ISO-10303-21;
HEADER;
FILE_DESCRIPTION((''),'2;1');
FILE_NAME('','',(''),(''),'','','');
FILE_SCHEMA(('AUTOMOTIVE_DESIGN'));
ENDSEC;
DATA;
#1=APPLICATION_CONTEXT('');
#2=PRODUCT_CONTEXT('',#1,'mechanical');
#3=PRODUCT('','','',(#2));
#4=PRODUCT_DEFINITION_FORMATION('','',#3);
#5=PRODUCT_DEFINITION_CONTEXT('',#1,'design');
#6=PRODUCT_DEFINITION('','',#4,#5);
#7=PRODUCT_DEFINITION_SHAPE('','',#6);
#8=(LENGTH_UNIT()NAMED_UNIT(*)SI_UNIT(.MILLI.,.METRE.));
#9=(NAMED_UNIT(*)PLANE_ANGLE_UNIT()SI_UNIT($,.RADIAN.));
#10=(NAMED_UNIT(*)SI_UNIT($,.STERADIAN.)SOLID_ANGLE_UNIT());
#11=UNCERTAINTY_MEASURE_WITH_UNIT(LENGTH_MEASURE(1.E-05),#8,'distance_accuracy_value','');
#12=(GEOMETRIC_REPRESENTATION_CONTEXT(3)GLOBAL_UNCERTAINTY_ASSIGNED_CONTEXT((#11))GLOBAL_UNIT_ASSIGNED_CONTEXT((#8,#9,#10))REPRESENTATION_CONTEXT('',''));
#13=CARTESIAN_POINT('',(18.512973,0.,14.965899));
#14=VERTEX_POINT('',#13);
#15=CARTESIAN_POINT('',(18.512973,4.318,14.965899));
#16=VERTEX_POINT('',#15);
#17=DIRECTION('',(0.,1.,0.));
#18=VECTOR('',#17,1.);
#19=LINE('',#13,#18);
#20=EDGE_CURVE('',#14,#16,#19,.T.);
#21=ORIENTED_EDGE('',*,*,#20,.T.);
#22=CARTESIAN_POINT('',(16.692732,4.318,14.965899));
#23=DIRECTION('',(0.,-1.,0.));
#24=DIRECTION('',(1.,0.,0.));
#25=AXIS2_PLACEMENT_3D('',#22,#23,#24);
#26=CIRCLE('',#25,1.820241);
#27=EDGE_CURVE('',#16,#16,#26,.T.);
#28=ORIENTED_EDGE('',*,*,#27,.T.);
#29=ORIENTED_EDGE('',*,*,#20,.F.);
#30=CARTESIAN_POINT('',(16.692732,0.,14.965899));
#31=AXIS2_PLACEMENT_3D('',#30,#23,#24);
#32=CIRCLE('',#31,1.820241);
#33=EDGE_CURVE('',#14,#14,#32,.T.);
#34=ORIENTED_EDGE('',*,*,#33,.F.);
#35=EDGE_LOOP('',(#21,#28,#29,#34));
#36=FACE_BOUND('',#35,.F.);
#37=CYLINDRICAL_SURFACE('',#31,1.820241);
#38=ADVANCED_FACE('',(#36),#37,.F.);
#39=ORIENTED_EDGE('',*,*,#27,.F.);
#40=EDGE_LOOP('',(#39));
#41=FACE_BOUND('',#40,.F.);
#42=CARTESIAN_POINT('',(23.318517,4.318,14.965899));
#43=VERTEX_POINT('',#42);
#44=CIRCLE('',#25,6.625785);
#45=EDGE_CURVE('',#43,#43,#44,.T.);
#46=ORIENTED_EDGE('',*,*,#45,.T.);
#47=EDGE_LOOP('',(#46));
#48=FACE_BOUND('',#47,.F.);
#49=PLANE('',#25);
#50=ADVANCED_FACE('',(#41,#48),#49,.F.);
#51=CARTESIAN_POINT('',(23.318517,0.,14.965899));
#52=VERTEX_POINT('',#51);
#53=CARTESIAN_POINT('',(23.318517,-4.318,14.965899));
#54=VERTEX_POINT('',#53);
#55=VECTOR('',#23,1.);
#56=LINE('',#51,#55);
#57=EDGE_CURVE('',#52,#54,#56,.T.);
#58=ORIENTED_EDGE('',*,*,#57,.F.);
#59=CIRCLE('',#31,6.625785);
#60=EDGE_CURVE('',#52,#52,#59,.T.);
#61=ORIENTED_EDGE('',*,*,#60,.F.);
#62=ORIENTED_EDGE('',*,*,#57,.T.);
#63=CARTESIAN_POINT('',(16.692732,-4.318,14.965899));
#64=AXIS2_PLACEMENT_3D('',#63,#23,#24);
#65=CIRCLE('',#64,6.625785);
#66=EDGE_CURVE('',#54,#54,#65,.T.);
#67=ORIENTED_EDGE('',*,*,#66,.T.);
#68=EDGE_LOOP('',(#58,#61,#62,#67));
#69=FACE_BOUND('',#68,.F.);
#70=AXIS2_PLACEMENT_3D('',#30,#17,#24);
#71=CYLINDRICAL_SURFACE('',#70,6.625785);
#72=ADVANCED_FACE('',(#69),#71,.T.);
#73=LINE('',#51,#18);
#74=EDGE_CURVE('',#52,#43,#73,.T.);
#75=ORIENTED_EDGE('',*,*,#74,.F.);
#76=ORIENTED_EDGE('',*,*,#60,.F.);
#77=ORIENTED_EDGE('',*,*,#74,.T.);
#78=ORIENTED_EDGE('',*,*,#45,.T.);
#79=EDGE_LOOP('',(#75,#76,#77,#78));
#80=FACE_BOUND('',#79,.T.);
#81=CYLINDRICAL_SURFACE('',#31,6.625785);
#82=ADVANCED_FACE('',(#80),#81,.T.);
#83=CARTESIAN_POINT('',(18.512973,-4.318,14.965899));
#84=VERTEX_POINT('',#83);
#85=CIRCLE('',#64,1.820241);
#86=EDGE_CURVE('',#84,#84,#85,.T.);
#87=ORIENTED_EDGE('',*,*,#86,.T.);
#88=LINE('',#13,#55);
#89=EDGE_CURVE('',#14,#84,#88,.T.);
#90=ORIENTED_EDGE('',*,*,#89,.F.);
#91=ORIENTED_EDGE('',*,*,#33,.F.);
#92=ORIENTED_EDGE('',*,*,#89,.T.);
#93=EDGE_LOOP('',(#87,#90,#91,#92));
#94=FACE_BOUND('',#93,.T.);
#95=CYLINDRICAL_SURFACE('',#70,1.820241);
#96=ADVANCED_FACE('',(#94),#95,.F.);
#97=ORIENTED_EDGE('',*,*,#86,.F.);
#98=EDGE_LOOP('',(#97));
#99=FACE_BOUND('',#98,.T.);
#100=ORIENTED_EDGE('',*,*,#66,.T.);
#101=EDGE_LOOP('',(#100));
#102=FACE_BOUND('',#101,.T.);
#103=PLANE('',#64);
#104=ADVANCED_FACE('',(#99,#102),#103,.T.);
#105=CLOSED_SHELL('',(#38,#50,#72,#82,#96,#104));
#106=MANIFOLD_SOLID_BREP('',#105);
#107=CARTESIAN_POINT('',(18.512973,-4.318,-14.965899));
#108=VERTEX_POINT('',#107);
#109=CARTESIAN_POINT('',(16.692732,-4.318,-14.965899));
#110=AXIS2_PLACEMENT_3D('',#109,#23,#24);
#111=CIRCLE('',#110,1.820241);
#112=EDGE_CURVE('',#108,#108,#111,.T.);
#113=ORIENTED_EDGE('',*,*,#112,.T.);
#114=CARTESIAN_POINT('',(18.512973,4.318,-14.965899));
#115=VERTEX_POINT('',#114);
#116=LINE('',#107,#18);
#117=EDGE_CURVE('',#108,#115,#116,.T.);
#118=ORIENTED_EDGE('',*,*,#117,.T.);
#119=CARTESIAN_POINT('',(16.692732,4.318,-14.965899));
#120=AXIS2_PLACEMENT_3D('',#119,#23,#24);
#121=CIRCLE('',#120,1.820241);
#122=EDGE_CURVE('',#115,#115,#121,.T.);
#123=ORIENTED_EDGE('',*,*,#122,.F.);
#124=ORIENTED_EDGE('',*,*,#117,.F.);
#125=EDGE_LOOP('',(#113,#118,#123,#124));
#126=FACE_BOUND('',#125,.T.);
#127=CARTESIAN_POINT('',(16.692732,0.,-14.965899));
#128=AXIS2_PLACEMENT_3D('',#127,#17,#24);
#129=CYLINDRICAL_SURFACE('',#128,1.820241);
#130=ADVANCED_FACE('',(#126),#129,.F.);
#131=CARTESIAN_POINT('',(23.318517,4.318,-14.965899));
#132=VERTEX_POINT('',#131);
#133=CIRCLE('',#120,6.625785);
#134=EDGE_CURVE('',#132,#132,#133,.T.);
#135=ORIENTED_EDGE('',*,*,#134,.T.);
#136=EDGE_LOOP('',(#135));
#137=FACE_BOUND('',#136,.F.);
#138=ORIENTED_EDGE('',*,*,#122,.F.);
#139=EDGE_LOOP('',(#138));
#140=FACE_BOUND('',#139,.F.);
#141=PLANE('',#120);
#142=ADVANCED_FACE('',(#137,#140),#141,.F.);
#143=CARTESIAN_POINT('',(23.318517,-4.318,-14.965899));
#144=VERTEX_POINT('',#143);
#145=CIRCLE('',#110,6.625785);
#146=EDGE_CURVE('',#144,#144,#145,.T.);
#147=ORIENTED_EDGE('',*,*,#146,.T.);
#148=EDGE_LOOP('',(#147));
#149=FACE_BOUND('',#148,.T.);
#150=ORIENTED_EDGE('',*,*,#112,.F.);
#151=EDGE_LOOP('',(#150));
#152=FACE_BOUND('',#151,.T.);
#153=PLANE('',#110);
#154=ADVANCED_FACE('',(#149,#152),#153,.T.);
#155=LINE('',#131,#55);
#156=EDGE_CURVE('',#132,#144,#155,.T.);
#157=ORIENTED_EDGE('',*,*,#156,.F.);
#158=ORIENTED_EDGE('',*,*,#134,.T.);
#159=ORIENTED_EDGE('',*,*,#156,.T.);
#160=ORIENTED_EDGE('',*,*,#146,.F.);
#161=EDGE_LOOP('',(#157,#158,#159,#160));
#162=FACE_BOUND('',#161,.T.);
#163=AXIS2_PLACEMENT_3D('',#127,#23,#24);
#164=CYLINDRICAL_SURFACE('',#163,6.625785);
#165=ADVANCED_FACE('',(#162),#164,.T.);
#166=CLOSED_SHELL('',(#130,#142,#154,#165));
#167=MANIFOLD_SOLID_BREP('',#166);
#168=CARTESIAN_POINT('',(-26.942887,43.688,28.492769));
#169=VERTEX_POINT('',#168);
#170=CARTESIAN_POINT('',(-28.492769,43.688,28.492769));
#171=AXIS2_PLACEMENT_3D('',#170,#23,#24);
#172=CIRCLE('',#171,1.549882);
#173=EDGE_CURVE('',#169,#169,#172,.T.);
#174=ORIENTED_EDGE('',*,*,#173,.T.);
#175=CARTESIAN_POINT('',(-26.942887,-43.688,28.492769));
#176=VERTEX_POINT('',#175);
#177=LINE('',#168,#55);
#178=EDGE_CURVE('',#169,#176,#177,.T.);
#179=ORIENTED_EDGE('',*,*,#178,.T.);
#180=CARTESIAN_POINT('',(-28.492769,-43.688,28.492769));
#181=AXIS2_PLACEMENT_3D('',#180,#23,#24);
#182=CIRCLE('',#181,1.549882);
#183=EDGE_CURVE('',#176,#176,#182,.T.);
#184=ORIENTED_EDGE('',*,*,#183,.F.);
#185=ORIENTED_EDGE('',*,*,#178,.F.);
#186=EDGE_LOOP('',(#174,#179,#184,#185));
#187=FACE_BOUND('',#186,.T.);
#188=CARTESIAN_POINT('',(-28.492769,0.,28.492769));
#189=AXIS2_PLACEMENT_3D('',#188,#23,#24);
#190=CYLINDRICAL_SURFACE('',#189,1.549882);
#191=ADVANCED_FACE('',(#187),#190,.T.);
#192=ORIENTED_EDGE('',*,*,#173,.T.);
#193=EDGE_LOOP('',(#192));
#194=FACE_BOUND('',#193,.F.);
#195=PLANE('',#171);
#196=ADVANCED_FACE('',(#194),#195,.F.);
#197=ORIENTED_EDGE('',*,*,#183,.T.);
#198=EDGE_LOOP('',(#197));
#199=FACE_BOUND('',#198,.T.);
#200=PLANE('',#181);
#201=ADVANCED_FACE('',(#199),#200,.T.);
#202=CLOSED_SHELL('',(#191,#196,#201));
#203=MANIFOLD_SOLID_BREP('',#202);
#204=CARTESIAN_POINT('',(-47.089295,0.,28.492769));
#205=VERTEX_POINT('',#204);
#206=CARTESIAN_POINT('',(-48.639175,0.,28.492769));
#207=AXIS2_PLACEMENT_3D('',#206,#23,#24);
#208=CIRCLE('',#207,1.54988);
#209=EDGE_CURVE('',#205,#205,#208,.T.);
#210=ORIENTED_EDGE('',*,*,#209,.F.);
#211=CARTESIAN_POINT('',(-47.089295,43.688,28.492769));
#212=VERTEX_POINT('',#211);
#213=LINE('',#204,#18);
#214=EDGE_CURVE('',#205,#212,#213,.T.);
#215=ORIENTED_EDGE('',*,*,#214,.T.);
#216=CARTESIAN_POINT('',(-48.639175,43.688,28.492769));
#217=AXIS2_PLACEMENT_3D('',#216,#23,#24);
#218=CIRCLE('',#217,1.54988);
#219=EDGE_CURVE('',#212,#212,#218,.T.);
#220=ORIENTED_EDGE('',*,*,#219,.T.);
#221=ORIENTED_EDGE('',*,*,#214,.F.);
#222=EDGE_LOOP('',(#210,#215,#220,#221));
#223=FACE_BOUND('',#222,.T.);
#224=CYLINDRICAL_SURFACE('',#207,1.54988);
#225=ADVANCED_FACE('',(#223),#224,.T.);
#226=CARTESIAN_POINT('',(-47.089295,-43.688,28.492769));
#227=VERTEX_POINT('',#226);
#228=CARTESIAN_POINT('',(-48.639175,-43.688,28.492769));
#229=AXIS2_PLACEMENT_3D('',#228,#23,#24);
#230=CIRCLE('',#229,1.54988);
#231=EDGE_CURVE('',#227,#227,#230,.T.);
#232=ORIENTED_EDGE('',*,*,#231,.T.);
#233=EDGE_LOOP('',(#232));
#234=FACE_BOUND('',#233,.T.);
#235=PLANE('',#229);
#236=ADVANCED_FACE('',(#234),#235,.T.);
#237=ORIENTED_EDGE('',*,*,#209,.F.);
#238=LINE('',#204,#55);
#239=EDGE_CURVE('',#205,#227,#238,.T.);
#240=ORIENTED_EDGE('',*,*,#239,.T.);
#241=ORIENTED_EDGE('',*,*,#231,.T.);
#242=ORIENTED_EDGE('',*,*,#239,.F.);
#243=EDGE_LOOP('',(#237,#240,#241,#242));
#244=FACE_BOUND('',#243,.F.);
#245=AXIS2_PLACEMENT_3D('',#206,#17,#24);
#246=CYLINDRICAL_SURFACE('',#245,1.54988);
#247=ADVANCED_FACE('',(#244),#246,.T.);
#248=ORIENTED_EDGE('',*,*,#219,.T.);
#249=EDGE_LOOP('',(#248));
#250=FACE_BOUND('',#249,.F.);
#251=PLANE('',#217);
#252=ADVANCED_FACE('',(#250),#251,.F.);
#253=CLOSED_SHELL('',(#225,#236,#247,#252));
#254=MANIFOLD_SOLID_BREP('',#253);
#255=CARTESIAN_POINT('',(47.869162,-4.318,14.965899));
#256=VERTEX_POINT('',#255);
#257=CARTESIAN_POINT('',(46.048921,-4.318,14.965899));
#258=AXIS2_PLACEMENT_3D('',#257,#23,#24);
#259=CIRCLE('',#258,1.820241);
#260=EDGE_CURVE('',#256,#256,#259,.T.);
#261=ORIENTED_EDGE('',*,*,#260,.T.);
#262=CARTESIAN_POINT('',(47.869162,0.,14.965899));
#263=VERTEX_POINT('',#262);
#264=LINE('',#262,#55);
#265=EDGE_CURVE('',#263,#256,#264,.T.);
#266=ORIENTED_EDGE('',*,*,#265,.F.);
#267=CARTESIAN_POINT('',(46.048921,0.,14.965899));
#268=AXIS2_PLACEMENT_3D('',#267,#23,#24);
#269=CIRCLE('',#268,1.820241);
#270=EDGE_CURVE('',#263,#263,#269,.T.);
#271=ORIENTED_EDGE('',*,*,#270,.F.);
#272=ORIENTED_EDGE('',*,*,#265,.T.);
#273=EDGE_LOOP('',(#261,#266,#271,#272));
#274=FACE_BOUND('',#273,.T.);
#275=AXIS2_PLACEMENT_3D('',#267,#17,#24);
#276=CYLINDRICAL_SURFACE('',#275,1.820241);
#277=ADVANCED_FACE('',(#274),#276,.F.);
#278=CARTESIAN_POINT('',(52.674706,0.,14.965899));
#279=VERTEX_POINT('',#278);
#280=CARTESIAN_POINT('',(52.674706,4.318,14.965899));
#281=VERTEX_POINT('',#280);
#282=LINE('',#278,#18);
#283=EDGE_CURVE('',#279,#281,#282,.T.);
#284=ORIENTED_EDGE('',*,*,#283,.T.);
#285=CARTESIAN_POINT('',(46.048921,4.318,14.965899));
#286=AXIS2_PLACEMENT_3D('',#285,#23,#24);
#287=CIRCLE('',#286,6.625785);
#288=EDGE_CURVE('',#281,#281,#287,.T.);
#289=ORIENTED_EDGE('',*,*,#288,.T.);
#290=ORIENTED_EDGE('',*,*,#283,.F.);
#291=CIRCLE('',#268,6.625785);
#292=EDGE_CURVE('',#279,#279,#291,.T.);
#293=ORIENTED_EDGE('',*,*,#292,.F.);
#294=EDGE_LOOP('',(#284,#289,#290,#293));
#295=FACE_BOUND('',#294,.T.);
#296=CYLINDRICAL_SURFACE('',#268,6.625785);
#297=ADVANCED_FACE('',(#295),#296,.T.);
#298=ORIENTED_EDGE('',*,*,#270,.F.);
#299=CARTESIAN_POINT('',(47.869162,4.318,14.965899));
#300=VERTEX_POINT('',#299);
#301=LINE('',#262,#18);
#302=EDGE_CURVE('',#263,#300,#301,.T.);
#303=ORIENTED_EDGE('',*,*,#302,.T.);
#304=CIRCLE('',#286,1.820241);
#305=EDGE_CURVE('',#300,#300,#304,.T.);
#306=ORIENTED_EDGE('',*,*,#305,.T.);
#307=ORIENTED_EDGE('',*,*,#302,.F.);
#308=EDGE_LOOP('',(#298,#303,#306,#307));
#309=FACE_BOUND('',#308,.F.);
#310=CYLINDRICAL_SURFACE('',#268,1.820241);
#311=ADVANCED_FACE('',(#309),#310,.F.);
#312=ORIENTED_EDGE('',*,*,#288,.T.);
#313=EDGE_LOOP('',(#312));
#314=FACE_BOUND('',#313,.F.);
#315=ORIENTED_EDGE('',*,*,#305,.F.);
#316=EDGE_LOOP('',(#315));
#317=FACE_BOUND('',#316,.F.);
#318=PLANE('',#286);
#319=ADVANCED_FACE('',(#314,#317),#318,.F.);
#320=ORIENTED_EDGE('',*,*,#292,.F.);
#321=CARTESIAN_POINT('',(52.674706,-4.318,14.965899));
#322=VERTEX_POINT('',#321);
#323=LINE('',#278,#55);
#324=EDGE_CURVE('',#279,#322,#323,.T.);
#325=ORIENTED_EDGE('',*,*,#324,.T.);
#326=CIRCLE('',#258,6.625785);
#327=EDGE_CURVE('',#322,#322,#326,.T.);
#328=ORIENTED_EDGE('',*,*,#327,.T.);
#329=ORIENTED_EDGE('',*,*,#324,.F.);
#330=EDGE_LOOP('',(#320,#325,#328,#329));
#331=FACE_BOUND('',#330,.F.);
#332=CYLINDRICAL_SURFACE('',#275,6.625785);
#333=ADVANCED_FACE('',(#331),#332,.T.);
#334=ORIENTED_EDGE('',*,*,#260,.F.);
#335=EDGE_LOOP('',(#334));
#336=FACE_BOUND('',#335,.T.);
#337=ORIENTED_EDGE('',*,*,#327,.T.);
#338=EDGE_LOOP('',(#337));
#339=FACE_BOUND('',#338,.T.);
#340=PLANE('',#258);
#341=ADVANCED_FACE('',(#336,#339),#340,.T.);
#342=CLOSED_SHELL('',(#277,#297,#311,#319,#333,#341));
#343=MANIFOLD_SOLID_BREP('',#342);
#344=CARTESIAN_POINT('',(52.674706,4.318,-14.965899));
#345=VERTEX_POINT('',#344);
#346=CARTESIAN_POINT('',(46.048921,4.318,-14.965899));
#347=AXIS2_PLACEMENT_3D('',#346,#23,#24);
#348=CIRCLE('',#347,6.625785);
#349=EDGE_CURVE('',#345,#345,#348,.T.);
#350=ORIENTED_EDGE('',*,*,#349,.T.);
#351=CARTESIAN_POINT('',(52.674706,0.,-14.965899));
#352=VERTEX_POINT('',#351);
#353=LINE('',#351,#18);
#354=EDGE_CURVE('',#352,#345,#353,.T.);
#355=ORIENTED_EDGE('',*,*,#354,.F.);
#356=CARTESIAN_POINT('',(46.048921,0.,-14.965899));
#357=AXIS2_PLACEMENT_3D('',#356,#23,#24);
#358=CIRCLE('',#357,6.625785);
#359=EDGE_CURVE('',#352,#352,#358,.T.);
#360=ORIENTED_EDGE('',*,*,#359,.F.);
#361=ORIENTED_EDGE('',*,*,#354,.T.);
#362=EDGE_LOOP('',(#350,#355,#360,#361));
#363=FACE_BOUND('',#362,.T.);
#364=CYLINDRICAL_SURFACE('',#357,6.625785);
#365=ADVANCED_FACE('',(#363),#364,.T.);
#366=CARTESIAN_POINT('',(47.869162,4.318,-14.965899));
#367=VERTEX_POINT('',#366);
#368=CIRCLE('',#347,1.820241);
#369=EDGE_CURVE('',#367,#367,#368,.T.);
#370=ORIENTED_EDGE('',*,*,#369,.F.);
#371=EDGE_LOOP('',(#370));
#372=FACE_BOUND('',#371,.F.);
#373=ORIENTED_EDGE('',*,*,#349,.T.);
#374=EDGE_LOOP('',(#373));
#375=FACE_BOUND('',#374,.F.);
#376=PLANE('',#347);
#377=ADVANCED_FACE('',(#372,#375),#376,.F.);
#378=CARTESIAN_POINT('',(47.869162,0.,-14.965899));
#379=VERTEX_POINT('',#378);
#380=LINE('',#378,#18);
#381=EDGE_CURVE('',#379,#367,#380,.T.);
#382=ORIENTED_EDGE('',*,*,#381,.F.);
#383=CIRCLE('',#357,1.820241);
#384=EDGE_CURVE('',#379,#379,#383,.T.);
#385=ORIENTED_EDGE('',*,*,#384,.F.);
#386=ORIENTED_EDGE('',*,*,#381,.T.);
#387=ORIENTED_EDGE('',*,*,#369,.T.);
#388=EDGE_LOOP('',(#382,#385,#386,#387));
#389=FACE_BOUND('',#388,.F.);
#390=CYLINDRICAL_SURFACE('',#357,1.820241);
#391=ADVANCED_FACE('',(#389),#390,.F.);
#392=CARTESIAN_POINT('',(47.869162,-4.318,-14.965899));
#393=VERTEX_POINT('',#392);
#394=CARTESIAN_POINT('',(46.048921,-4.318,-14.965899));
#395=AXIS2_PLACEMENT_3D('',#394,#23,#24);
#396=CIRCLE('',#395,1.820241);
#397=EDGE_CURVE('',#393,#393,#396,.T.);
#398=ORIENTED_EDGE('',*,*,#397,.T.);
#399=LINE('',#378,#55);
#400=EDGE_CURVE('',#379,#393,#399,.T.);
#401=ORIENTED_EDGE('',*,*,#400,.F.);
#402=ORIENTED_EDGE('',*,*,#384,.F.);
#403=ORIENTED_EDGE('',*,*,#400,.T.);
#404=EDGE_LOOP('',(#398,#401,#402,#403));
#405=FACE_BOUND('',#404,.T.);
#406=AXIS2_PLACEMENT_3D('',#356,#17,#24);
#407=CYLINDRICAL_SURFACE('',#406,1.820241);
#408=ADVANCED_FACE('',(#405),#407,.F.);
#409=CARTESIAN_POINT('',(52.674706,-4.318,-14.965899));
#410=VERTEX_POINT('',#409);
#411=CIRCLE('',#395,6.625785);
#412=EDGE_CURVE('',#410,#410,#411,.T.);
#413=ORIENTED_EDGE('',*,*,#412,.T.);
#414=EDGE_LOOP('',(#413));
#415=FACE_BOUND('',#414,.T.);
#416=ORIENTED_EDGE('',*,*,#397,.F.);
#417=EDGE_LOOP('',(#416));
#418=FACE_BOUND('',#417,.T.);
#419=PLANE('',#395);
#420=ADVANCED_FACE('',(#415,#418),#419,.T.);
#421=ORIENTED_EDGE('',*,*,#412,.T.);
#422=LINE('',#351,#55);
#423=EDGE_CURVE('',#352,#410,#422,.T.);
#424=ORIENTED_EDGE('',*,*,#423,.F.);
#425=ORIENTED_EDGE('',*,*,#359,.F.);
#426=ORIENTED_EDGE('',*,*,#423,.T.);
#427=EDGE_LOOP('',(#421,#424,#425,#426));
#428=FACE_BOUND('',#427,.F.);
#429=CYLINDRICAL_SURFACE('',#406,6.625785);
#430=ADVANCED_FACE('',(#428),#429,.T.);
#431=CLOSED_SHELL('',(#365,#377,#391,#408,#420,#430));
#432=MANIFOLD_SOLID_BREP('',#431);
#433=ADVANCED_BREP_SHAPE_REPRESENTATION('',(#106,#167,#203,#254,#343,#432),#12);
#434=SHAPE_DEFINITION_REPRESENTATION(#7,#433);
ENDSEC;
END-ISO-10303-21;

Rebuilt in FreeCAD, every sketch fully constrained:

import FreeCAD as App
import Part
import Sketcher
Q = App.Units.Quantity

doc = App.newDocument("Part")
body = doc.addObject("PartDesign::Body", "Body")
body.AllowCompound = True

# Sketch on XZ plane
sketch1 = body.newObject("Sketcher::SketchObject", "Sketch")
sketch1.AttachmentSupport = (doc.getObject("XZ_Plane"), [""])
sketch1.MapMode = "FlatFace"
sketch1.addGeometry([
    Part.Circle(App.Vector(-48.6, 28.5, 0), App.Vector(0, 0, 1), 1.5),
    Part.Circle(App.Vector(-28.5, 28.5, 0), App.Vector(0, 0, 1), 1.5),
], False)
sketch1.addConstraint([
    Sketcher.Constraint("Horizontal", 0, 3, 1, 3),
    Sketcher.Constraint("Diameter", 0, Q("3.09976 mm")),
    Sketcher.Constraint("Diameter", 1, Q("3.099764 mm")),
    Sketcher.Constraint("DistanceY", -1, 1, 0, 3, Q("28.492769 mm")),
    Sketcher.Constraint("DistanceX", 1, 3, -1, 1, Q("28.492769 mm")),
    Sketcher.Constraint("DistanceX", 0, 3, -1, 1, Q("48.639175 mm")),
])
pad1 = body.newObject("PartDesign::Pad", "Pad")
pad1.Profile = sketch1
pad1.Length = Q("3.44 in")
pad1.Midplane = True
body2 = doc.addObject("PartDesign::Body", "Body001")
body2.AllowCompound = True

# Sketch on XZ plane
sketch2 = body2.newObject("Sketcher::SketchObject", "Sketch001")
sketch2.AttachmentSupport = (doc.getObject("XZ_Plane001"), [""])
sketch2.MapMode = "FlatFace"
sketch2.addGeometry([
    Part.Circle(App.Vector(46, 15, 0), App.Vector(0, 0, 1), 6.6),  # 0
    Part.Circle(App.Vector(46, 15, 0), App.Vector(0, 0, 1), 1.8),  # 1
    Part.Circle(App.Vector(46, -15, 0), App.Vector(0, 0, 1), 6.6),  # 2
    Part.Circle(App.Vector(46, -15, 0), App.Vector(0, 0, 1), 1.8),  # 3
    Part.Circle(App.Vector(16.7, 15, 0), App.Vector(0, 0, 1), 6.6),  # 4
    Part.Circle(App.Vector(16.7, 15, 0), App.Vector(0, 0, 1), 1.8),  # 5
    Part.Circle(App.Vector(16.7, -15, 0), App.Vector(0, 0, 1), 6.6),  # 6
    Part.Circle(App.Vector(16.7, -15, 0), App.Vector(0, 0, 1), 1.8),  # 7
], False)
sketch2.addConstraint([
    Sketcher.Constraint("Coincident", 1, 3, 0, 3),
    Sketcher.Constraint("Coincident", 3, 3, 2, 3),
    Sketcher.Constraint("Coincident", 5, 3, 4, 3),
    Sketcher.Constraint("Coincident", 7, 3, 6, 3),
    Sketcher.Constraint("Equal", 0, 2),
    Sketcher.Constraint("Equal", 1, 3),
    Sketcher.Constraint("Equal", 2, 4),
    Sketcher.Constraint("Equal", 3, 5),
    Sketcher.Constraint("Equal", 4, 6),
    Sketcher.Constraint("Equal", 5, 7),
    Sketcher.Constraint("Symmetric", 0, 3, 2, 3, -1),
    Sketcher.Constraint("Symmetric", 4, 3, 6, 3, -1),
    Sketcher.Constraint("Horizontal", 1, 3, 4, 3),
    Sketcher.Constraint("Diameter", 0, Q("13.25157 mm")),
    Sketcher.Constraint("Diameter", 1, Q("3.640482 mm")),
    Sketcher.Constraint("DistanceY", -1, 1, 0, 3, Q("14.965899 mm")),
    Sketcher.Constraint("DistanceX", -1, 1, 0, 3, Q("46.048921 mm")),
    Sketcher.Constraint("DistanceX", -1, 1, 4, 3, Q("16.692732 mm")),
])
pad2 = body2.newObject("PartDesign::Pad", "Pad001")
pad2.Profile = sketch2
pad2.Length = Q("0.34 in")
pad2.Midplane = True

doc.recompute()
